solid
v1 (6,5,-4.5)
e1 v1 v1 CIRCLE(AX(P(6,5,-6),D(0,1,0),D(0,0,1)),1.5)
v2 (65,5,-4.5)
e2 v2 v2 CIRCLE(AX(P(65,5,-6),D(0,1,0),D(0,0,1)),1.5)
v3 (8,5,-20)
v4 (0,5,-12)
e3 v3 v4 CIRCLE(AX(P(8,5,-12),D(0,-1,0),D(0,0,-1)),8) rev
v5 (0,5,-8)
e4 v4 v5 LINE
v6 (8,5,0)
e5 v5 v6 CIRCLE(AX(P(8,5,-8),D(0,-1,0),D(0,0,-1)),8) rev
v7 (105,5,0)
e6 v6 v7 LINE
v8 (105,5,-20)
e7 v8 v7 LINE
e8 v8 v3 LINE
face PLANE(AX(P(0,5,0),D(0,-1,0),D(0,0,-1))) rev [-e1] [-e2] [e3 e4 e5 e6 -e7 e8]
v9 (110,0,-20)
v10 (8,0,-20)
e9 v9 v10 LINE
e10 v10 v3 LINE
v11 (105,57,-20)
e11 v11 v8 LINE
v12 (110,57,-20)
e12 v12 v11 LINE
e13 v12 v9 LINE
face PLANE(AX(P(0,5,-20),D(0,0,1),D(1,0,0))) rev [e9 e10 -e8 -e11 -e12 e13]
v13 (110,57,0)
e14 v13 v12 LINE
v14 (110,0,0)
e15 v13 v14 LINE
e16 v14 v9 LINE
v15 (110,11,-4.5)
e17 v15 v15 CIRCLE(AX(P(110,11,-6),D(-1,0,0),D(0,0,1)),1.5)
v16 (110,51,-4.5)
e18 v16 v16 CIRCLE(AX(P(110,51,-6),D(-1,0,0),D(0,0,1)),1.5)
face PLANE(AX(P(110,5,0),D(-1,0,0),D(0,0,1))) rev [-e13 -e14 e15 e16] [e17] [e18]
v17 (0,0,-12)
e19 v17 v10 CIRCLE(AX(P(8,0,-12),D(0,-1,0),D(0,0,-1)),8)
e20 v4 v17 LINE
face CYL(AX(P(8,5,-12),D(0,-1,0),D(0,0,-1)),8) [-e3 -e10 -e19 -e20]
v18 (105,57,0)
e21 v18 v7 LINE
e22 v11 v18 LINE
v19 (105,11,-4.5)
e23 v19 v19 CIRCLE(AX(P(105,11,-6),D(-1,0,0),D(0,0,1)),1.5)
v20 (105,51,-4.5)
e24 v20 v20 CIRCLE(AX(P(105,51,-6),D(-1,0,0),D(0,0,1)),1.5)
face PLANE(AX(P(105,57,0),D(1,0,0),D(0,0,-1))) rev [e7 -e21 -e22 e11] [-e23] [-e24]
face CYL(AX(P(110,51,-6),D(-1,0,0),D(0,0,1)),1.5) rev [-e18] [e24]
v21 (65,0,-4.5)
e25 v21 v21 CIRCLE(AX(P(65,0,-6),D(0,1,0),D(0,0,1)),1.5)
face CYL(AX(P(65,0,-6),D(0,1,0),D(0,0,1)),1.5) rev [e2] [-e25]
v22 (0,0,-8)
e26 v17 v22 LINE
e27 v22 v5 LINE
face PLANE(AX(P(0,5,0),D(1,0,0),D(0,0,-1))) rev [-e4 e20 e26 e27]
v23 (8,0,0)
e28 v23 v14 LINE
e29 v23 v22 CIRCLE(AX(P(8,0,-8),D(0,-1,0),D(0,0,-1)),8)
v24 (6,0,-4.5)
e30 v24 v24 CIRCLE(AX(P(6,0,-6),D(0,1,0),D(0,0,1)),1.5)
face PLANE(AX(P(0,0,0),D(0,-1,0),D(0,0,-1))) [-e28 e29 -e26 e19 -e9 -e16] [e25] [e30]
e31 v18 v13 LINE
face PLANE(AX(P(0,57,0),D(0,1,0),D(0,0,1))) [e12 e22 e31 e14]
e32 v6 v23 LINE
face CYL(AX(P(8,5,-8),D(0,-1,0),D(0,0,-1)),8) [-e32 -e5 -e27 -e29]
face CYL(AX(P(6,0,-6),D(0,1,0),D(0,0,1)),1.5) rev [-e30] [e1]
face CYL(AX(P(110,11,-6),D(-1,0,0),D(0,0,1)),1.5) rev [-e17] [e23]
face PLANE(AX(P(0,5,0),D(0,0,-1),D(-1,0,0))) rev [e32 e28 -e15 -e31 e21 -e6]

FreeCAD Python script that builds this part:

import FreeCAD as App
import Part
import Sketcher

V = App.Vector


def edges_at(feature, points):
    """Names of the edges that pass closest to the given points."""
    edges = feature.Shape.Edges
    near = lambda p: min(range(len(edges)), key=lambda i: edges[i].distToShape(Part.Vertex(*p))[0])
    return sorted({f"Edge{near(p) + 1}" for p in points})

doc = App.newDocument("Part")
body = doc.addObject("PartDesign::Body", "Body")

sketch1 = body.newObject("Sketcher::SketchObject", "Sketch")
sketch1.AttachmentSupport = (doc.getObject("XZ_Plane"), [""])
sketch1.MapMode = "FlatFace"
sketch1.addGeometry([
    Part.LineSegment(V(0, -20, 0), V(0, 0, 0)),
    Part.LineSegment(V(0, 0, 0), V(110, 0, 0)),
    Part.LineSegment(V(110, 0, 0), V(110, -20, 0)),
    Part.LineSegment(V(110, -20, 0), V(0, -20, 0)),
], False)
sketch1.addConstraint([
    Sketcher.Constraint("Coincident", 0, 2, 1, 1),
    Sketcher.Constraint("Coincident", 1, 2, 2, 1),
    Sketcher.Constraint("Coincident", 2, 2, 3, 1),
    Sketcher.Constraint("Coincident", 3, 2, 0, 1),
    Sketcher.Constraint("Vertical", 0),
    Sketcher.Constraint("Horizontal", 1),
    Sketcher.Constraint("Vertical", 2),
    Sketcher.Constraint("Horizontal", 3),
    Sketcher.Constraint("Coincident", 0, 2, -1, 1),
    Sketcher.Constraint("DistanceX", 1, 1, 1, 2, 110.0),
    Sketcher.Constraint("DistanceY", 0, 1, 0, 2, 20.0),
])
pad1 = body.newObject("PartDesign::Pad", "Pad")
pad1.Profile = sketch1
pad1.Length = 5
pad1.Reversed = True

sketch2 = body.newObject("Sketcher::SketchObject", "Sketch001")
sketch2.AttachmentSupport = (doc.getObject("XZ_Plane"), [""])
sketch2.MapMode = "FlatFace"
sketch2.AttachmentOffset = App.Placement(V(0, 0, -5), App.Rotation())
sketch2.addGeometry([
    Part.LineSegment(V(105, -20, 0), V(105, 0, 0)),
    Part.LineSegment(V(105, 0, 0), V(110, 0, 0)),
    Part.LineSegment(V(110, 0, 0), V(110, -20, 0)),
    Part.LineSegment(V(110, -20, 0), V(105, -20, 0)),
], False)
sketch2.addConstraint([
    Sketcher.Constraint("Coincident", 0, 2, 1, 1),
    Sketcher.Constraint("Coincident", 1, 2, 2, 1),
    Sketcher.Constraint("Coincident", 2, 2, 3, 1),
    Sketcher.Constraint("Coincident", 3, 2, 0, 1),
    Sketcher.Constraint("Vertical", 0),
    Sketcher.Constraint("Horizontal", 1),
    Sketcher.Constraint("Vertical", 2),
    Sketcher.Constraint("Horizontal", 3),
    Sketcher.Constraint("PointOnObject", 0, 2, -1),
    Sketcher.Constraint("DistanceX", 1, 1, 1, 2, 5.0),
    Sketcher.Constraint("DistanceY", 0, 1, 0, 2, 20.0),
    Sketcher.Constraint("DistanceX", -1, 1, 0, 2, 105.0),
])
pad2 = body.newObject("PartDesign::Pad", "Pad001")
pad2.Profile = sketch2
pad2.Length = 52
pad2.Reversed = True

sketch3 = body.newObject("Sketcher::SketchObject", "Sketch002")
sketch3.AttachmentSupport = (doc.getObject("XZ_Plane"), [""])
sketch3.MapMode = "FlatFace"
sketch3.AttachmentOffset = App.Placement(V(0, 0, -5), App.Rotation())
sketch3.addGeometry([
    Part.Circle(V(6, -6, 0), V(0, 0, 1), 1.5),
    Part.Circle(V(65, -6, 0), V(0, 0, 1), 1.5),
], False)
sketch3.addConstraint([
    Sketcher.Constraint("Equal", 0, 1),
    Sketcher.Constraint("Horizontal", 0, 3, 1, 3),
    Sketcher.Constraint("Diameter", 0, 3.0),
    Sketcher.Constraint("DistanceX", -1, 1, 0, 3, 6.0),
    Sketcher.Constraint("DistanceY", 0, 3, -1, 1, 6.0),
    Sketcher.Constraint("DistanceX", -1, 1, 1, 3, 65.0),
])
pocket1 = body.newObject("PartDesign::Pocket", "Pocket")
pocket1.Profile = sketch3
pocket1.Type = "ThroughAll"
pocket1.Reversed = True
doc.recompute()

fillet = body.newObject("PartDesign::Fillet", "Fillet")
fillet.Base = (pocket1, edges_at(pocket1, [(0, 2.5, 0), (0, 2.5, -20)]))
fillet.Radius = 8

sketch4 = body.newObject("Sketcher::SketchObject", "Sketch003")
sketch4.AttachmentSupport = (doc.getObject("YZ_Plane"), [""])
sketch4.MapMode = "FlatFace"
sketch4.AttachmentOffset = App.Placement(V(0, 0, 105), App.Rotation())
sketch4.addGeometry([
    Part.Circle(V(11, -6, 0), V(0, 0, 1), 1.5),
    Part.Circle(V(51, -6, 0), V(0, 0, 1), 1.5),
], False)
sketch4.addConstraint([
    Sketcher.Constraint("Equal", 0, 1),
    Sketcher.Constraint("Horizontal", 0, 3, 1, 3),
    Sketcher.Constraint("Diameter", 0, 3.0),
    Sketcher.Constraint("DistanceX", -1, 1, 0, 3, 11.0),
    Sketcher.Constraint("DistanceY", 0, 3, -1, 1, 6.0),
    Sketcher.Constraint("DistanceX", -1, 1, 1, 3, 51.0),
])
pocket2 = body.newObject("PartDesign::Pocket", "Pocket001")
pocket2.Profile = sketch4
pocket2.Type = "ThroughAll"
pocket2.Reversed = True

doc.recompute()
